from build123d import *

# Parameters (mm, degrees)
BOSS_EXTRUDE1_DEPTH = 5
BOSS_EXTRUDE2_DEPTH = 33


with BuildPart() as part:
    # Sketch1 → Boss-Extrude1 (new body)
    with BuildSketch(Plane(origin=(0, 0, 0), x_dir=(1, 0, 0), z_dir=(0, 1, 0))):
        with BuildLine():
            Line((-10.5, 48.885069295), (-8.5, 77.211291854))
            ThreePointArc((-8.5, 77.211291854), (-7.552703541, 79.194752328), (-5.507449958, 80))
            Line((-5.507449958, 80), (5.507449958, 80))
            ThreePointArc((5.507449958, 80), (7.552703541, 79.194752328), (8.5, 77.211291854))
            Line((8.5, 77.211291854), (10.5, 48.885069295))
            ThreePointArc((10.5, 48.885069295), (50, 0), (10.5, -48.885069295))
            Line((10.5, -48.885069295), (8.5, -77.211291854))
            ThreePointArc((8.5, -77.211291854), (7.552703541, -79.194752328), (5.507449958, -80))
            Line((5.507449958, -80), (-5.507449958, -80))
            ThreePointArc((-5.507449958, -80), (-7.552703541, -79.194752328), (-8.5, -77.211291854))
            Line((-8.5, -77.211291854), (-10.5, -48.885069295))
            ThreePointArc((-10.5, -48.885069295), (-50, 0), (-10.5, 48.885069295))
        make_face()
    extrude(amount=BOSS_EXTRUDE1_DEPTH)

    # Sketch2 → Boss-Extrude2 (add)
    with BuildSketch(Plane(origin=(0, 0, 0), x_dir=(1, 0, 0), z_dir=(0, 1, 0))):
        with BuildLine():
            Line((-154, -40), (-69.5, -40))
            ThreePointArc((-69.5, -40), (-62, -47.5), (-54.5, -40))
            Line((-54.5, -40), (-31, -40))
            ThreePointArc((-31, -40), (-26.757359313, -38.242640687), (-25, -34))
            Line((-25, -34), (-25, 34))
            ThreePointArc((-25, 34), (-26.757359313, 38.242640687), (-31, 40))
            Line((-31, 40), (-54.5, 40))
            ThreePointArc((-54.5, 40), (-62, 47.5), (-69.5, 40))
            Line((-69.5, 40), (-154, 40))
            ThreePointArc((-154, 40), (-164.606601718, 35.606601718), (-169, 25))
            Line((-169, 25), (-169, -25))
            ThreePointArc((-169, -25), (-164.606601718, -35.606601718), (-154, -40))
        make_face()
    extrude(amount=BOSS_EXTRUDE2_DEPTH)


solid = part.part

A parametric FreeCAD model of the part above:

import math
import FreeCAD as App
import Part
import Sketcher

doc = App.newDocument("Part")
params = doc.addObject("Spreadsheet::Sheet", "Params")
for row, (alias, value) in enumerate([
    ("sketch1_radius", "50 mm"),
    ("sketch1_radius2", "3 mm"),
    ("pad1_length", "5 mm"),
    ("sketch2_radius", "6 mm"),
    ("sketch2_radius2", "15 mm"),
    ("sketch2_radius3", "7.5 mm"),
    ("sketch2_height", "68 mm"),
    ("sketch2_width", "84.5 mm"),
    ("pad2_length", "33 mm"),
], start=1):
    params.set(f"A{row}", alias)
    params.set(f"B{row}", "=" + value)
    params.setAlias(f"B{row}", alias)

body = doc.addObject("PartDesign::Body", "Body")

sketch1 = body.newObject("Sketcher::SketchObject", "Sketch")
sketch1.AttachmentSupport = (doc.getObject("XZ_Plane"), [""])
sketch1.MapMode = "FlatFace"
sketch1.addGeometry(Part.LineSegment(App.Vector(-8.5, -77.2, 0), App.Vector(-10.5, -48.9, 0)), False)
sketch1.addGeometry(Part.ArcOfCircle(Part.Circle(App.Vector(0, 0, 0), App.Vector(0, 0, 1), 50), math.radians(102), math.radians(258)), False)
sketch1.addGeometry(Part.LineSegment(App.Vector(-10.5, 48.9, 0), App.Vector(-8.5, 77.2, 0)), False)
sketch1.addGeometry(Part.ArcOfCircle(Part.Circle(App.Vector(-5.5, 77, 0), App.Vector(0, 0, 1), 3), math.radians(90), math.radians(176)), False)
sketch1.addGeometry(Part.LineSegment(App.Vector(-5.5, 80, 0), App.Vector(5.5, 80, 0)), False)
sketch1.addGeometry(Part.ArcOfCircle(Part.Circle(App.Vector(5.5, 77, 0), App.Vector(0, 0, 1), 3), math.radians(4), math.radians(90)), False)
sketch1.addGeometry(Part.LineSegment(App.Vector(8.5, 77.2, 0), App.Vector(10.5, 48.9, 0)), False)
sketch1.addGeometry(Part.ArcOfCircle(Part.Circle(App.Vector(0, 0, 0), App.Vector(0, 0, 1), 50), math.radians(-78), math.radians(78)), False)
sketch1.addGeometry(Part.LineSegment(App.Vector(10.5, -48.9, 0), App.Vector(8.5, -77.2, 0)), False)
sketch1.addGeometry(Part.ArcOfCircle(Part.Circle(App.Vector(5.5, -77, 0), App.Vector(0, 0, 1), 3), math.radians(-90), math.radians(-4)), False)
sketch1.addGeometry(Part.LineSegment(App.Vector(5.5, -80, 0), App.Vector(-5.5, -80, 0)), False)
sketch1.addGeometry(Part.ArcOfCircle(Part.Circle(App.Vector(-5.5, -77, 0), App.Vector(0, 0, 1), 3), math.radians(-176), math.radians(-90)), False)
sketch1.addConstraint(Sketcher.Constraint("Coincident", 0, 2, 1, 2))
sketch1.addConstraint(Sketcher.Constraint("Coincident", 1, 1, 2, 1))
sketch1.addConstraint(Sketcher.Constraint("Tangent", 2, 2, 3, 2))
sketch1.addConstraint(Sketcher.Constraint("Tangent", 3, 1, 4, 1))
sketch1.addConstraint(Sketcher.Constraint("Tangent", 4, 2, 5, 2))
sketch1.addConstraint(Sketcher.Constraint("Tangent", 5, 1, 6, 1))
sketch1.addConstraint(Sketcher.Constraint("Coincident", 6, 2, 7, 2))
sketch1.addConstraint(Sketcher.Constraint("Coincident", 7, 1, 8, 1))
sketch1.addConstraint(Sketcher.Constraint("Tangent", 8, 2, 9, 2))
sketch1.addConstraint(Sketcher.Constraint("Tangent", 9, 1, 10, 1))
sketch1.addConstraint(Sketcher.Constraint("Tangent", 10, 2, 11, 2))
sketch1.addConstraint(Sketcher.Constraint("Tangent", 11, 1, 0, 1))
sketch1.addConstraint(Sketcher.Constraint("Horizontal", 4))
sketch1.addConstraint(Sketcher.Constraint("Horizontal", 10))
sketch1.addConstraint(Sketcher.Constraint("Coincident", 1, 3, -1, 1))
sketch1.addConstraint(Sketcher.Constraint("Coincident", 7, 3, -1, 1))
sketch1.addConstraint(Sketcher.Constraint("Equal", 3, 5))
sketch1.addConstraint(Sketcher.Constraint("Equal", 1, 7))
sketch1.addConstraint(Sketcher.Constraint("Equal", 5, 9))
sketch1.addConstraint(Sketcher.Constraint("Equal", 9, 11))
sketch1.addConstraint(Sketcher.Constraint("Symmetric", 3, 3, 9, 3, -1, 1))
sketch1.addConstraint(Sketcher.Constraint("Symmetric", 5, 1, 11, 1, -1, 1))
sketch1.addConstraint(Sketcher.Constraint("Symmetric", 2, 2, 5, 1, -2))
sketch1.addConstraint(Sketcher.Constraint("Parallel", 2, 8))
sketch1.addConstraint(Sketcher.Constraint("Radius", 1, 50.0))
sketch1.addConstraint(Sketcher.Constraint("Radius", 3, 3.0))
sketch1.addConstraint(Sketcher.Constraint("DistanceY", -1, 1, 3, 3, 77.0))
sketch1.addConstraint(Sketcher.Constraint("DistanceX", 1, 1, 2, 2, 2.0))
sketch1.addConstraint(Sketcher.Constraint("DistanceX", 2, 2, 5, 1, 17.0))
sketch1.setExpression("Constraints[24]", "Params.sketch1_radius")
sketch1.setExpression("Constraints[25]", "Params.sketch1_radius2")
pad1 = body.newObject("PartDesign::Pad", "Pad")
pad1.Profile = sketch1
pad1.setExpression("Length", "Params.pad1_length")
pad1.Reversed = True

sketch2 = body.newObject("Sketcher::SketchObject", "Sketch001")
sketch2.AttachmentSupport = (doc.getObject("XZ_Plane"), [""])
sketch2.MapMode = "FlatFace"
sketch2.addGeometry(Part.LineSegment(App.Vector(-154, 40, 0), App.Vector(-70, 40, 0)), False)
sketch2.addGeometry(Part.ArcOfCircle(Part.Circle(App.Vector(-62, 40, 0), App.Vector(0, 0, 1), 8), math.radians(0), math.radians(180)), False)
sketch2.addGeometry(Part.LineSegment(App.Vector(-54, 40, 0), App.Vector(-31, 40, 0)), False)
sketch2.addGeometry(Part.ArcOfCircle(Part.Circle(App.Vector(-31, 34, 0), App.Vector(0, 0, 1), 6), math.radians(0), math.radians(90)), False)
sketch2.addGeometry(Part.LineSegment(App.Vector(-25, 34, 0), App.Vector(-25, -34, 0)), False)
sketch2.addGeometry(Part.ArcOfCircle(Part.Circle(App.Vector(-31, -34, 0), App.Vector(0, 0, 1), 6), math.radians(-90), math.radians(0)), False)
sketch2.addGeometry(Part.LineSegment(App.Vector(-31, -40, 0), App.Vector(-54, -40, 0)), False)
sketch2.addGeometry(Part.ArcOfCircle(Part.Circle(App.Vector(-62, -40, 0), App.Vector(0, 0, 1), 8), math.radians(180), math.radians(360)), False)
sketch2.addGeometry(Part.LineSegment(App.Vector(-70, -40, 0), App.Vector(-154, -40, 0)), False)
sketch2.addGeometry(Part.ArcOfCircle(Part.Circle(App.Vector(-154, -25, 0), App.Vector(0, 0, 1), 15), math.radians(180), math.radians(270)), False)
sketch2.addGeometry(Part.LineSegment(App.Vector(-169, -25, 0), App.Vector(-169, 25, 0)), False)
sketch2.addGeometry(Part.ArcOfCircle(Part.Circle(App.Vector(-154, 25, 0), App.Vector(0, 0, 1), 15), math.radians(90), math.radians(180)), False)
sketch2.addConstraint(Sketcher.Constraint("Coincident", 0, 2, 1, 2))
sketch2.addConstraint(Sketcher.Constraint("Coincident", 1, 1, 2, 1))
sketch2.addConstraint(Sketcher.Constraint("Tangent", 2, 2, 3, 2))
sketch2.addConstraint(Sketcher.Constraint("Tangent", 3, 1, 4, 1))
sketch2.addConstraint(Sketcher.Constraint("Tangent", 4, 2, 5, 2))
sketch2.addConstraint(Sketcher.Constraint("Tangent", 5, 1, 6, 1))
sketch2.addConstraint(Sketcher.Constraint("Coincident", 6, 2, 7, 2))
sketch2.addConstraint(Sketcher.Constraint("Coincident", 7, 1, 8, 1))
sketch2.addConstraint(Sketcher.Constraint("Tangent", 8, 2, 9, 2))
sketch2.addConstraint(Sketcher.Constraint("Tangent", 9, 1, 10, 1))
sketch2.addConstraint(Sketcher.Constraint("Tangent", 10, 2, 11, 2))
sketch2.addConstraint(Sketcher.Constraint("Tangent", 11, 1, 0, 1))
sketch2.addConstraint(Sketcher.Constraint("Horizontal", 0))
sketch2.addConstraint(Sketcher.Constraint("Horizontal", 2))
sketch2.addConstraint(Sketcher.Constraint("Vertical", 4))
sketch2.addConstraint(Sketcher.Constraint("Horizontal", 6))
sketch2.addConstraint(Sketcher.Constraint("Horizontal", 8))
sketch2.addConstraint(Sketcher.Constraint("Vertical", 10))
sketch2.addConstraint(Sketcher.Constraint("Equal", 3, 5))
sketch2.addConstraint(Sketcher.Constraint("Equal", 1, 7))
sketch2.addConstraint(Sketcher.Constraint("Equal", 9, 11))
sketch2.addConstraint(Sketcher.Constraint("Symmetric", 1, 3, 7, 3, -1))
sketch2.addConstraint(Sketcher.Constraint("Horizontal", 1, 3, 0, 2))
sketch2.addConstraint(Sketcher.Constraint("Horizontal", 0, 2, 1, 1))
sketch2.addConstraint(Sketcher.Constraint("Horizontal", 7, 3, 5, 1))
sketch2.addConstraint(Sketcher.Constraint("Horizontal", 6, 2, 7, 1))
sketch2.addConstraint(Sketcher.Constraint("Radius", 3, 6.0))
sketch2.addConstraint(Sketcher.Constraint("Radius", 9, 15.0))
sketch2.addConstraint(Sketcher.Constraint("Radius", 1, 7.5))
sketch2.addConstraint(Sketcher.Constraint("DistanceY", 4, 2, 4, 1, 68.0))
sketch2.addConstraint(Sketcher.Constraint("DistanceX", 0, 1, 0, 2, 84.5))
sketch2.addConstraint(Sketcher.Constraint("DistanceX", 2, 1, 2, 2, 23.5))
sketch2.addConstraint(Sketcher.Constraint("DistanceX", 1, 3, -1, 1, 62.0))
sketch2.setExpression("Constraints[26]", "Params.sketch2_radius")
sketch2.setExpression("Constraints[27]", "Params.sketch2_radius2")
sketch2.setExpression("Constraints[28]", "Params.sketch2_radius3")
sketch2.setExpression("Constraints[29]", "Params.sketch2_height")
sketch2.setExpression("Constraints[30]", "Params.sketch2_width")
pad2 = body.newObject("PartDesign::Pad", "Pad001")
pad2.Profile = sketch2
pad2.setExpression("Length", "Params.pad2_length")
pad2.Reversed = True

doc.recompute()
